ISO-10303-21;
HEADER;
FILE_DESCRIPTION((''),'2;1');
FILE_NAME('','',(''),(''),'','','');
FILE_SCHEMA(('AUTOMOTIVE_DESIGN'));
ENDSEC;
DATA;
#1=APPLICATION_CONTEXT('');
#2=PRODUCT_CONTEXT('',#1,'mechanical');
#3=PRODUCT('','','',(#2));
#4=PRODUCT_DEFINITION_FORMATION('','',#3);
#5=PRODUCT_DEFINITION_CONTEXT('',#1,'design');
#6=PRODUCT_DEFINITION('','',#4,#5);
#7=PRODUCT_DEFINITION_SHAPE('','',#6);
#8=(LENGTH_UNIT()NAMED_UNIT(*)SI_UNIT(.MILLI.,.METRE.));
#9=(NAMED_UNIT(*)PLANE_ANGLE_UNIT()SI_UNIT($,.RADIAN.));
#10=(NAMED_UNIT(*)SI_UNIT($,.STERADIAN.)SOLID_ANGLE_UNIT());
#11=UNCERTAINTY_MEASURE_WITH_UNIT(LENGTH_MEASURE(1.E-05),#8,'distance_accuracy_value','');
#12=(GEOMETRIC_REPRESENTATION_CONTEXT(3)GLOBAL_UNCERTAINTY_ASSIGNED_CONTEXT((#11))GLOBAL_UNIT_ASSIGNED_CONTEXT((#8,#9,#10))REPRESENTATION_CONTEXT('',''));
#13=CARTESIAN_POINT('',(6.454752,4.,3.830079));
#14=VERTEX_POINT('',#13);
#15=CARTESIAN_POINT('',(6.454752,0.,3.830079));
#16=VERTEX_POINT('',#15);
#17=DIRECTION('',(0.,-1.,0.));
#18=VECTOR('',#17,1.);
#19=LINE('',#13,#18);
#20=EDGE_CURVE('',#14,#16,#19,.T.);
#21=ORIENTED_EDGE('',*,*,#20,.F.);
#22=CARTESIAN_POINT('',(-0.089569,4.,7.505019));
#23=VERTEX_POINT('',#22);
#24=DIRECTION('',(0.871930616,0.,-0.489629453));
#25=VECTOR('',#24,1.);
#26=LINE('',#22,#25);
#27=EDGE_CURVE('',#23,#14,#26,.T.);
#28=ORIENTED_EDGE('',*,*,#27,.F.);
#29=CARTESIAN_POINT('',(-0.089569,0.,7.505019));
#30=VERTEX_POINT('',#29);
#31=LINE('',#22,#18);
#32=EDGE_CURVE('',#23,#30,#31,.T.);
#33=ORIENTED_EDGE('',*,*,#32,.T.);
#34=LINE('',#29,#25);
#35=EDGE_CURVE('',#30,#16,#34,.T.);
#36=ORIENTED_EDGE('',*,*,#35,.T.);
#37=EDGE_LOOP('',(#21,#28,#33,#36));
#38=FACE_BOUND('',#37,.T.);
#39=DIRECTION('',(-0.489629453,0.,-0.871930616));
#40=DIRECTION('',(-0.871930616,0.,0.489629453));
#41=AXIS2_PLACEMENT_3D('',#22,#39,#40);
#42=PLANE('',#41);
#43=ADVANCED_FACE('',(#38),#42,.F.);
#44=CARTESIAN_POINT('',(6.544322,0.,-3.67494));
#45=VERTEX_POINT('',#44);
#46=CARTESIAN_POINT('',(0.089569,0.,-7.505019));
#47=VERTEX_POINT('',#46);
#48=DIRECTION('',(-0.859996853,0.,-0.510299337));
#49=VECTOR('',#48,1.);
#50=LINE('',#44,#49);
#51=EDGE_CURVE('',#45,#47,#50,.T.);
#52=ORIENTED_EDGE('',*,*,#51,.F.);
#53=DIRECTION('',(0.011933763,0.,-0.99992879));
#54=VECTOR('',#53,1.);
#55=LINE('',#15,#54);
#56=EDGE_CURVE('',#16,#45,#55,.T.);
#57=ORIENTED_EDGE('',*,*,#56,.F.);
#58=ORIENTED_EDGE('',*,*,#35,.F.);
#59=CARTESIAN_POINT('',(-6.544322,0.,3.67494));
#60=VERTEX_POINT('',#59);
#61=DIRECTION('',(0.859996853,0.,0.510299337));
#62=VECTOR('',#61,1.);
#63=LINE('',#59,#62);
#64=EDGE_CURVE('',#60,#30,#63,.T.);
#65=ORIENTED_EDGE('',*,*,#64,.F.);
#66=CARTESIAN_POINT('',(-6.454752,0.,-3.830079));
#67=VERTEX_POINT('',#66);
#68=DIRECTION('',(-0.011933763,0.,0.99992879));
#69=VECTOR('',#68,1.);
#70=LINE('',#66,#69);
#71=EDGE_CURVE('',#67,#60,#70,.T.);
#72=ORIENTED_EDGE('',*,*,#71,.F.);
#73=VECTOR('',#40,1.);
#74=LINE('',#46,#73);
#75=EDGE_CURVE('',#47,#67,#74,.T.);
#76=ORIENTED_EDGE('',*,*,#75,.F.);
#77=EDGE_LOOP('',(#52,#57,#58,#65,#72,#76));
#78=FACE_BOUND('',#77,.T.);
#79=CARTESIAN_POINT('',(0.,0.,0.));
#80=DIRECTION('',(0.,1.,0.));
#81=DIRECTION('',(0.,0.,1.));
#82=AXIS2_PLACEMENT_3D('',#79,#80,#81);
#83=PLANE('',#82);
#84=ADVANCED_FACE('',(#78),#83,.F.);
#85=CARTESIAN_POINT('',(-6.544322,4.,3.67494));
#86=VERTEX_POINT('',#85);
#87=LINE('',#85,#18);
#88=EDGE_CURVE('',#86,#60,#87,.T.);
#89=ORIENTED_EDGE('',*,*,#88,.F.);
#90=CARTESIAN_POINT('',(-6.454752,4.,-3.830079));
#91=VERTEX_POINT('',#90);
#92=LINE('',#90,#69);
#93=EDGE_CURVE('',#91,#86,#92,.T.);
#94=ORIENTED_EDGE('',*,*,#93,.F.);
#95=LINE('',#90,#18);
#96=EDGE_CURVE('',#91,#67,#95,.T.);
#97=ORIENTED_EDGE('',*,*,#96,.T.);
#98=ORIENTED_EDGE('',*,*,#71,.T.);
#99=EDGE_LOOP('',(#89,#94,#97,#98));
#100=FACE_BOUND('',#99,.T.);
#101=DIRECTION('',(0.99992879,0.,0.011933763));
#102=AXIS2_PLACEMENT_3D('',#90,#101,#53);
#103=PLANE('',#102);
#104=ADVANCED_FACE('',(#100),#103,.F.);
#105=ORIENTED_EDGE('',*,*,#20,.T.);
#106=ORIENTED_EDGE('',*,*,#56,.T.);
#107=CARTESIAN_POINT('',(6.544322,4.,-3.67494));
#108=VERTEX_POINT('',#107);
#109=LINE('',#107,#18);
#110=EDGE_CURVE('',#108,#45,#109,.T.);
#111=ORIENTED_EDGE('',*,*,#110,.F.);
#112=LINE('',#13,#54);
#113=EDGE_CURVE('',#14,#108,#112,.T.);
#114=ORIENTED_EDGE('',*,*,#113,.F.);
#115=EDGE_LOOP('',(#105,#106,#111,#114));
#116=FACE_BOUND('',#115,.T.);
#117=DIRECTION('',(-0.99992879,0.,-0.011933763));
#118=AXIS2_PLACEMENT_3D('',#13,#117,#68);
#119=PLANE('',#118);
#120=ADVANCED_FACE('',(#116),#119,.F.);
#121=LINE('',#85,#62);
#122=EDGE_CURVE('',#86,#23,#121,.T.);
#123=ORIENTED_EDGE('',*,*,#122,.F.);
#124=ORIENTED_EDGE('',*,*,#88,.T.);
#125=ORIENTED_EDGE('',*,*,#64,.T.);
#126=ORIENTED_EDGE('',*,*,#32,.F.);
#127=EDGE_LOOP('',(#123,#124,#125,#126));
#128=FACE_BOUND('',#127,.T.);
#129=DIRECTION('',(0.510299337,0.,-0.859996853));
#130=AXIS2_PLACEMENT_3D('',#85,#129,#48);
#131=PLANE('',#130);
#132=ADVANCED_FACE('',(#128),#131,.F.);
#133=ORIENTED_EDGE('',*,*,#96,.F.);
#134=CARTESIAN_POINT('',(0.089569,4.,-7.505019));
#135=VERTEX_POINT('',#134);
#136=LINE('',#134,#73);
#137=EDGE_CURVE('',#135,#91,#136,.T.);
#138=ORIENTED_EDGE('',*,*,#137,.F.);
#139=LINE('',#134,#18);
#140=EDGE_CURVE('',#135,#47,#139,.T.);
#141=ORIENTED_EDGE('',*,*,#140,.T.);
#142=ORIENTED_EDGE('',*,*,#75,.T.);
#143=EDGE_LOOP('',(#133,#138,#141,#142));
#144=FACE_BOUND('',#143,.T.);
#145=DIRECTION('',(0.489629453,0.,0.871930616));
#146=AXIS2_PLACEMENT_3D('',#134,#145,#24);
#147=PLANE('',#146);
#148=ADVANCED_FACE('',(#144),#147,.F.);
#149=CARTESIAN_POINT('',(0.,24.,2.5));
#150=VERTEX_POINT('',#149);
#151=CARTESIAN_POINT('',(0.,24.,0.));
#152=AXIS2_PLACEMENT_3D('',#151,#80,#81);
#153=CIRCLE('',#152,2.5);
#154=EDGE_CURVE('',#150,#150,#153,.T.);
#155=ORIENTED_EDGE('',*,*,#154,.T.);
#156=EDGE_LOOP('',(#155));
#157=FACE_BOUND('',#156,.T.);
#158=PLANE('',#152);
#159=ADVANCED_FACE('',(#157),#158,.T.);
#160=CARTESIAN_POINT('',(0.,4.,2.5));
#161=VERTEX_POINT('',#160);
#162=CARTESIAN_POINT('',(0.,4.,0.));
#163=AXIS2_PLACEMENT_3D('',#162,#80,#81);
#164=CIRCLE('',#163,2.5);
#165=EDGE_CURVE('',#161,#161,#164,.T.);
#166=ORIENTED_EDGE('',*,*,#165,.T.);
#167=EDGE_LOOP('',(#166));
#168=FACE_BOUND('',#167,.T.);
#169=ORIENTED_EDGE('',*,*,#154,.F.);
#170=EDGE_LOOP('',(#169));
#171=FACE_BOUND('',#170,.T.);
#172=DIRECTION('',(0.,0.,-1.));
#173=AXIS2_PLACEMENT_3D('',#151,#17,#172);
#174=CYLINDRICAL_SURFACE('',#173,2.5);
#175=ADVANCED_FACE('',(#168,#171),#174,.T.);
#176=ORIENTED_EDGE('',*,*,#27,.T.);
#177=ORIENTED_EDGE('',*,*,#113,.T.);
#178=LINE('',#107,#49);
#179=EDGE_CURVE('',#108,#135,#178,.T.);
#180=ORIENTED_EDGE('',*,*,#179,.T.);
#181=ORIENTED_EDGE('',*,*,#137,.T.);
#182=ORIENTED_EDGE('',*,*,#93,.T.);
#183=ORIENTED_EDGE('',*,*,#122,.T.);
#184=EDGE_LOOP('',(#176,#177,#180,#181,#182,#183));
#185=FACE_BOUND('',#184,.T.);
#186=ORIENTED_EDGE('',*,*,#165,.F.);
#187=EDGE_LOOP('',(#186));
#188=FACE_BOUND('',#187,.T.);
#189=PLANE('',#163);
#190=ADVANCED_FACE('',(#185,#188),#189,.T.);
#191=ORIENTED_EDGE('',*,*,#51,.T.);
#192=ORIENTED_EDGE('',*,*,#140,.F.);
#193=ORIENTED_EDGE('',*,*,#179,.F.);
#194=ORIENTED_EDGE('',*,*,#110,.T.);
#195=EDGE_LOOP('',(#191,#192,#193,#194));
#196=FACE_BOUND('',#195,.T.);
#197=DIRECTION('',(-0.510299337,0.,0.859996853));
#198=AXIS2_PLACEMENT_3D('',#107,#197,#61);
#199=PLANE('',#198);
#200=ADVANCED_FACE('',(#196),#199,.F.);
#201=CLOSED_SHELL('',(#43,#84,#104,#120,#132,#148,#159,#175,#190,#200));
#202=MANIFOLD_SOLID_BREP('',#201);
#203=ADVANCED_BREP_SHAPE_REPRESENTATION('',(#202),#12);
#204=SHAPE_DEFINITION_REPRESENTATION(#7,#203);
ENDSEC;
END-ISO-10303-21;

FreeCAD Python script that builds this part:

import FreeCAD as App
import Part
import Sketcher
Q = App.Units.Quantity


def add_polygon(sketch, points):
    """Adds a closed chain of lines whose ends are joined by coincident constraints."""
    first, n = sketch.GeometryCount, len(points)
    for a, b in zip(points, points[1:] + points[:1]):
        sketch.addGeometry(Part.LineSegment(App.Vector(*a, 0), App.Vector(*b, 0)), False)
    for i in range(n):
        sketch.addConstraint(Sketcher.Constraint("Coincident", first + i, 2, first + (i + 1) % n, 1))

doc = App.newDocument("Part")
params = doc.addObject("Spreadsheet::Sheet", "Params")
for row, (alias, value) in enumerate([
    ("pad1_length", "4 mm"),
    ("sketch2_diameter", "5 mm"),
    ("pad2_length", "20 mm"),
], start=1):
    params.set(f"A{row}", alias)
    params.set(f"B{row}", "=" + value)
    params.setAlias(f"B{row}", alias)

body = doc.addObject("PartDesign::Body", "Body")

# Sketch on XZ plane
sketch1 = doc.addObject("Sketcher::SketchObject", "Sketch")
body.addObject(sketch1)
sketch1.AttachmentSupport = (doc.XZ_Plane, [""])
sketch1.MapMode = "FlatFace"
add_polygon(sketch1, [(6, 4), (7, -4), (0, -8), (-6, -4), (-7, 4), (0, 8)])  # lines 0-5
sketch1.addConstraint([
    Sketcher.Constraint("Symmetric", 0, 2, 3, 2, -1, 1),
    Sketcher.Constraint("Symmetric", 1, 2, 4, 2, -1, 1),
    Sketcher.Constraint("Symmetric", 2, 2, 5, 2, -1, 1),
    Sketcher.Constraint("Equal", 0, 1),
    Sketcher.Constraint("Equal", 1, 2),
    Sketcher.Constraint("DistanceY", 2, 2, 4, 2, Q("11.335098 mm")),
    Sketcher.Constraint("DistanceX", -1, 1, 0, 2, Q("6.544322 mm")),
    Sketcher.Constraint("DistanceY", 0, 2, -1, 1, Q("3.67494 mm")),
    Sketcher.Constraint("DistanceX", -1, 1, 1, 2, Q("0.089569 mm")),
])
pad1 = doc.addObject("PartDesign::Pad", "Pad")
body.addObject(pad1)
pad1.Profile = sketch1
pad1.setExpression("Length", "Params.pad1_length")
pad1.Reversed = True

# Sketch on XZ plane
sketch2 = doc.addObject("Sketcher::SketchObject", "Sketch001")
body.addObject(sketch2)
sketch2.AttachmentSupport = (doc.XZ_Plane, [""])
sketch2.MapMode = "FlatFace"
sketch2.AttachmentOffset = App.Placement(App.Vector(0, 0, -4), App.Rotation())
sketch2.addGeometry(Part.Circle(App.Vector(0, 0, 0), App.Vector(0, 0, 1), 2.5), False)
sketch2.addConstraint([
    Sketcher.Constraint("Coincident", 0, 3, -1, 1),
    Sketcher.Constraint("Diameter", 0, Q("5 mm")),
])
sketch2.setExpression("Constraints[1]", "Params.sketch2_diameter")
pad2 = doc.addObject("PartDesign::Pad", "Pad001")
body.addObject(pad2)
pad2.Profile = sketch2
pad2.setExpression("Length", "Params.pad2_length")
pad2.Reversed = True

doc.recompute()
